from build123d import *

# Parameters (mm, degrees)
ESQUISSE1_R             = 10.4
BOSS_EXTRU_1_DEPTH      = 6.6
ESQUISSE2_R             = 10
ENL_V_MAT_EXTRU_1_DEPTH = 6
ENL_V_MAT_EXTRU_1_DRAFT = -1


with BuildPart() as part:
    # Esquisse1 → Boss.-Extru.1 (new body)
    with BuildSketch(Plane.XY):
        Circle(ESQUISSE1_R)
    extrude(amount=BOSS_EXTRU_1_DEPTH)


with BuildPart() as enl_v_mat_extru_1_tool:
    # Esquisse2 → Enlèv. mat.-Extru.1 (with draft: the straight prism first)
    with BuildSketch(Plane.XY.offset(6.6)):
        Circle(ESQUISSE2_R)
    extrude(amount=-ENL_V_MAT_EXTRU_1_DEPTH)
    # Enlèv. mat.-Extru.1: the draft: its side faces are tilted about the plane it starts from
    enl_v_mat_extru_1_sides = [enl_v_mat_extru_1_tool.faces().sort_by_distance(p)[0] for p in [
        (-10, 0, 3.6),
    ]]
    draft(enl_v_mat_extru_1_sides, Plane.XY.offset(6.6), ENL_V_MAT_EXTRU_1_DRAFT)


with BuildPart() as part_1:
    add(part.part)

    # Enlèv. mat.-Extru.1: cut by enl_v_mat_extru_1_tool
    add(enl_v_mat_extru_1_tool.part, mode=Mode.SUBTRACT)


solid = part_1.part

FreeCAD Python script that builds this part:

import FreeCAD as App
import Part
import Sketcher
from FreeCAD import Vector
Q = App.Units.Quantity


def faces_at(feature, points):
    """Names of the faces that lie closest to the given points."""
    faces = feature.Shape.Faces
    near = lambda p: min(range(len(faces)), key=lambda i: faces[i].distToShape(Part.Vertex(*p))[0])
    return sorted({f"Face{near(p) + 1}" for p in points})

doc = App.newDocument("Part")
params = doc.addObject("Spreadsheet::Sheet", "Params")
for row, (alias, value) in enumerate([
    ("sketch1_diameter", "20.8 mm"),
    ("pad1_length", "6.6 mm"),
    ("sketch2_diameter", "20 mm"),
    ("pad2_length", "6 mm"),
    ("draft_angle", "1 deg"),
], start=1):
    params.set(f"A{row}", alias)
    params.set(f"B{row}", "=" + value)
    params.setAlias(f"B{row}", alias)

body = doc.addObject("PartDesign::Body", "Body")

sketch1 = body.newObject("Sketcher::SketchObject", "Sketch")
sketch1.AttachmentSupport = (doc.getObject("XY_Plane"), [""])
sketch1.MapMode = "FlatFace"
sketch1.addGeometry(Part.Circle(Vector(0, 0, 0), Vector(0, 0, 1), 10), False)
sketch1.addConstraint([
    Sketcher.Constraint("Coincident", 0, 3, -1, 1),
    Sketcher.Constraint("Diameter", 0, Q("20.8 mm")),
])
sketch1.setExpression("Constraints[1]", "Params.sketch1_diameter")
pad1 = body.newObject("PartDesign::Pad", "Pad")
pad1.Profile = sketch1
pad1.setExpression("Length", "Params.pad1_length")
body2 = doc.addObject("PartDesign::Body", "Body001")

sketch2 = body2.newObject("Sketcher::SketchObject", "Sketch001")
sketch2.AttachmentSupport = (doc.getObject("XY_Plane001"), [""])
sketch2.MapMode = "FlatFace"
sketch2.AttachmentOffset = App.Placement(Vector(0, 0, 6.6), App.Rotation())
sketch2.addGeometry(Part.Circle(Vector(0, 0, 0), Vector(0, 0, 1), 10), False)
sketch2.addConstraint([
    Sketcher.Constraint("Coincident", 0, 3, -1, 1),
    Sketcher.Constraint("Diameter", 0, Q("20 mm")),
])
sketch2.setExpression("Constraints[1]", "Params.sketch2_diameter")
pad2 = body2.newObject("PartDesign::Pad", "Pad001")
pad2.Profile = sketch2
pad2.setExpression("Length", "Params.pad2_length")
pad2.Reversed = True
doc.recompute()

datumplane = body2.newObject("PartDesign::Plane", "DatumPlane")
datumplane.AttachmentSupport = (doc.getObject("XY_Plane001"), [""])
datumplane.MapMode = "FlatFace"
datumplane.AttachmentOffset = App.Placement(Vector(0, 0, 6.6), App.Rotation())
draft = body2.newObject("PartDesign::Draft", "Draft")
draft.Base = (pad2, faces_at(pad2, [(-10, 0, 3.6)]))
draft.NeutralPlane = (datumplane, [""])
draft.setExpression("Angle", "Params.draft_angle")
draft.Reversed = True
doc.recompute()

boolean = body.newObject("PartDesign::Boolean", "Boolean")
boolean.Type = "Cut"
boolean.addObjects([body2])

doc.recompute()
